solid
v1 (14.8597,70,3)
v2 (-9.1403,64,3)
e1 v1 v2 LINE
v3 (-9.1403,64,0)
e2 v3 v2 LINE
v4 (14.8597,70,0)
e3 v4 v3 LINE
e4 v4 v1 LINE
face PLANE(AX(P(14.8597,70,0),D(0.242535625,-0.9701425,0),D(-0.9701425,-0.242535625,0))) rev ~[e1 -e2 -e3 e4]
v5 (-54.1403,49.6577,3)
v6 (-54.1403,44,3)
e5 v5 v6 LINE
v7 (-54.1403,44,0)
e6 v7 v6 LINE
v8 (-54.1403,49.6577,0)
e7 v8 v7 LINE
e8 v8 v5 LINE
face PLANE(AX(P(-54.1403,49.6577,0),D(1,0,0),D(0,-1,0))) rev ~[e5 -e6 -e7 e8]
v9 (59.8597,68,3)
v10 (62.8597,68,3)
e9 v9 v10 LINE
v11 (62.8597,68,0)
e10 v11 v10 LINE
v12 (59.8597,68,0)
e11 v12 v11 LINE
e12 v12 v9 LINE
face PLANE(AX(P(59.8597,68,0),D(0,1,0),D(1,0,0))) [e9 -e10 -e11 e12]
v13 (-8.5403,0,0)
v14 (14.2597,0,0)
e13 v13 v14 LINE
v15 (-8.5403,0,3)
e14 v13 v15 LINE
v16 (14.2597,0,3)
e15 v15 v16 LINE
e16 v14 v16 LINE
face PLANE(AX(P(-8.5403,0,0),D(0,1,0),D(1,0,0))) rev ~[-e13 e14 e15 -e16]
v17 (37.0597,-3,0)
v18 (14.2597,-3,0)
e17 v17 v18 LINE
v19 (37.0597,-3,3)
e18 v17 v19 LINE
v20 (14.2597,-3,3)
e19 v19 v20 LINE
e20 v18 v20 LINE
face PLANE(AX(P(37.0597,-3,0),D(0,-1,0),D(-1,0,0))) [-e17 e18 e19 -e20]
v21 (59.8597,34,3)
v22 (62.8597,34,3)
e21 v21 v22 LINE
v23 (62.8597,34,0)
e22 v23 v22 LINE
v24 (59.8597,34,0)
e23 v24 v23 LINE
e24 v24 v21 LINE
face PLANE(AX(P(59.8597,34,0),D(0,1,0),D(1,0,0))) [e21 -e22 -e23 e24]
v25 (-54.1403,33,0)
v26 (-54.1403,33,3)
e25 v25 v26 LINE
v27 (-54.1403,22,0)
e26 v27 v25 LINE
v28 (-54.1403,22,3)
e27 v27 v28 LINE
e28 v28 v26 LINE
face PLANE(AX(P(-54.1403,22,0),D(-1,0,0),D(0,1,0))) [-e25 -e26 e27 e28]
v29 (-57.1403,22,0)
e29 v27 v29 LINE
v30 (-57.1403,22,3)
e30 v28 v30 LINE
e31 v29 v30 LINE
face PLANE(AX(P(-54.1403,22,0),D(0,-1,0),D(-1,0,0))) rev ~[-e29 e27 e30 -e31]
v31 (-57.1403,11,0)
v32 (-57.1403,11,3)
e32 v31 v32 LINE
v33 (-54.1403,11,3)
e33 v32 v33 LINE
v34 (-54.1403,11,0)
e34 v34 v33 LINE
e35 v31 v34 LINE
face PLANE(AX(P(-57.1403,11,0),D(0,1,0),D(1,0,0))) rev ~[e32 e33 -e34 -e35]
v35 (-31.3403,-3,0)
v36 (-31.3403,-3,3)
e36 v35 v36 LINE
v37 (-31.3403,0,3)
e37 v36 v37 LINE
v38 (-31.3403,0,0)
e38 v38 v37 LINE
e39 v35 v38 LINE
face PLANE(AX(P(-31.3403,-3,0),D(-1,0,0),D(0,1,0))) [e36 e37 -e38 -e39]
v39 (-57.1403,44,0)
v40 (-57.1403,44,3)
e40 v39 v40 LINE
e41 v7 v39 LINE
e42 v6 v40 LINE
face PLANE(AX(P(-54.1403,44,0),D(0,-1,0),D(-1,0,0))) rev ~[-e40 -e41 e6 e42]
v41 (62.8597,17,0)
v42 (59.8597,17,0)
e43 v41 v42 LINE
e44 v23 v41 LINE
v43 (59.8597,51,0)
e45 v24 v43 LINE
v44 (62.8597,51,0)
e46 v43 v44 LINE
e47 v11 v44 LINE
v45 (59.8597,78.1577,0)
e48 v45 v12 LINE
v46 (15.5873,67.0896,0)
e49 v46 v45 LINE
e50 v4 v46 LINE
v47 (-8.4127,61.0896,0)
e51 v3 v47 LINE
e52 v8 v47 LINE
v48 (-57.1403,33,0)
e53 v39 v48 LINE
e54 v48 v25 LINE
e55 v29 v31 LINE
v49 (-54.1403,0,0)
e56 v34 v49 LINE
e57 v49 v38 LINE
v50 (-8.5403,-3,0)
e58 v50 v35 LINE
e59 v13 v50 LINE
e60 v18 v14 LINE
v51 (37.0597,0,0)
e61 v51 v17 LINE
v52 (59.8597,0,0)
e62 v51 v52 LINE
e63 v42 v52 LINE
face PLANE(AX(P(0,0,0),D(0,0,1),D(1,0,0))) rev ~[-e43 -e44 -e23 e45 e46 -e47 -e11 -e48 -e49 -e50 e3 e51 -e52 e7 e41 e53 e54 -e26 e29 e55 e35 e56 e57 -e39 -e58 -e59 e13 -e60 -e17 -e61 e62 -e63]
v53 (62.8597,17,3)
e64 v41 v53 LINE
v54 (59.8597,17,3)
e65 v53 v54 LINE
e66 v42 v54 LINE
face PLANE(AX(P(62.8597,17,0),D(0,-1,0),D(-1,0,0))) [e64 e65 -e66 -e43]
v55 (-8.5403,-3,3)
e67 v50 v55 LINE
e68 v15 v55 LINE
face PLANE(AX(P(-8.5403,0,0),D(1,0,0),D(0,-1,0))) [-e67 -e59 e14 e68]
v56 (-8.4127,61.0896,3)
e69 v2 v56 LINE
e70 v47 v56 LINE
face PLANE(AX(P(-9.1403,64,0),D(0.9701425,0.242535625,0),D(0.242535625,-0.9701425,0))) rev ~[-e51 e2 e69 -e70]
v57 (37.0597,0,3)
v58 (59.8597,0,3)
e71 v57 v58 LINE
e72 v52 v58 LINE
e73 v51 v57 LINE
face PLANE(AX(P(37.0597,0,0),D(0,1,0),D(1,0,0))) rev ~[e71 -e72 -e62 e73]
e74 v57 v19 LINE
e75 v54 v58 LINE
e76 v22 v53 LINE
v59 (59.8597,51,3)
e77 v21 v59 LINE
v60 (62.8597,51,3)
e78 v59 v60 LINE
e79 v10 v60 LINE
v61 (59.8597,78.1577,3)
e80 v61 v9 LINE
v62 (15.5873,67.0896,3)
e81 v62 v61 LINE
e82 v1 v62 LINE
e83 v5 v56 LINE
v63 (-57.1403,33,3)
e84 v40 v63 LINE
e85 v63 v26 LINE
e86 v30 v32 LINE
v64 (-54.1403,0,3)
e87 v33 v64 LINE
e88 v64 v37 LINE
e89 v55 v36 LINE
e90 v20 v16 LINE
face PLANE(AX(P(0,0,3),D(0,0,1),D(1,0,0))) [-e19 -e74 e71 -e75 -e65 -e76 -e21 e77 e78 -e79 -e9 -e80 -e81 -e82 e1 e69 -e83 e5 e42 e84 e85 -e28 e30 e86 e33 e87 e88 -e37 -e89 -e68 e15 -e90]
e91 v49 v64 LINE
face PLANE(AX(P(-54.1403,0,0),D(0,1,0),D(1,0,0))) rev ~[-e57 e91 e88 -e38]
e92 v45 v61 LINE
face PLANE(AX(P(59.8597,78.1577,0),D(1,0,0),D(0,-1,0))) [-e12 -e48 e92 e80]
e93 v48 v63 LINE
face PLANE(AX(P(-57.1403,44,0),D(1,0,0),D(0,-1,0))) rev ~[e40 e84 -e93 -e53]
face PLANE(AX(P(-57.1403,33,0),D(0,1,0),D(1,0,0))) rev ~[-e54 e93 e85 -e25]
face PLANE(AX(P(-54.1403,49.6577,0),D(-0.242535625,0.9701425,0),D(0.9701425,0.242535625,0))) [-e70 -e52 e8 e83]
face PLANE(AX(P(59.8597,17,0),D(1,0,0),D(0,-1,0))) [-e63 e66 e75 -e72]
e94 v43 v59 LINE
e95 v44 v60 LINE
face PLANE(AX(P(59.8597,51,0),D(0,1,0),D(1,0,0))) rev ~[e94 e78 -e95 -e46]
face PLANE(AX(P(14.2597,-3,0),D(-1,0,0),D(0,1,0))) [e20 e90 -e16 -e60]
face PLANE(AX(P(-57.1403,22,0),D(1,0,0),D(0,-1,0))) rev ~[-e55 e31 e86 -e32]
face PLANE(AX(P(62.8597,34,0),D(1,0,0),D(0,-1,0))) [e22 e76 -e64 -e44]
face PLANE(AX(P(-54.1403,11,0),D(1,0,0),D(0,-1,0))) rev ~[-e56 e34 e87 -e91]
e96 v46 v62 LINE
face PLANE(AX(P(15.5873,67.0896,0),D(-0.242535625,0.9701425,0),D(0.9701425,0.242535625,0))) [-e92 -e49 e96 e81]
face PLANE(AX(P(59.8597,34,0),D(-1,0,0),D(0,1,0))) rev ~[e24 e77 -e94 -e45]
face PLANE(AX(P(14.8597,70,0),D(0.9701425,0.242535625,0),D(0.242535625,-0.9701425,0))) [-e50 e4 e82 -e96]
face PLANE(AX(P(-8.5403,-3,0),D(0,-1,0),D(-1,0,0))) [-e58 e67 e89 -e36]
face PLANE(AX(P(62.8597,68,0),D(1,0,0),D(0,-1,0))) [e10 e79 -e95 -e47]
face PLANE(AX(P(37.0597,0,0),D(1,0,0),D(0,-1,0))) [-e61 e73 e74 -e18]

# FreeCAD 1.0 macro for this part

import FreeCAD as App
import Part
import Sketcher

V = App.Vector


def add_polygon(sketch, points):
    """Adds a closed chain of lines whose ends are joined by coincident constraints."""
    first, n = sketch.GeometryCount, len(points)
    for a, b in zip(points, points[1:] + points[:1]):
        sketch.addGeometry(Part.LineSegment(App.Vector(*a, 0), App.Vector(*b, 0)), False)
    for i in range(n):
        sketch.addConstraint(Sketcher.Constraint("Coincident", first + i, 2, first + (i + 1) % n, 1))

doc = App.newDocument("Part")
params = doc.addObject("Spreadsheet::Sheet", "Params")
for row, (alias, value) in enumerate([
    ("sketch1_width", "3 mm"),
    ("sketch1_height", "11 mm"),
    ("sketch1_height2", "17 mm"),
    ("sketch1_length", "3 mm"),
    ("sketch1_width2", "22.8 mm"),
    ("pad1_length", "3 mm"),
], start=1):
    params.set(f"A{row}", alias)
    params.set(f"B{row}", "=" + value)
    params.setAlias(f"B{row}", alias)

body = doc.addObject("PartDesign::Body", "Body")

sketch1 = body.newObject("Sketcher::SketchObject", "Sketch")
sketch1.AttachmentSupport = (doc.getObject("XY_Plane"), [""])
sketch1.MapMode = "FlatFace"
add_polygon(sketch1, [(15.6, 67.1), (14.9, 70), (-9.1, 64), (-8.4, 61.1), (-54.1, 49.7), (-54.1, 44), (-57.1, 44), (-57.1, 33), (-54.1, 33), (-54.1, 22), (-57.1, 22), (-57.1, 11), (-54.1, 11), (-54.1, 0), (-31.3, 0), (-31.3, -3), (-8.5, -3), (-8.5, 0), (14.3, 0), (14.3, -3), (37.1, -3), (37.1, 0), (59.9, 0), (59.9, 17), (62.9, 17), (62.9, 34), (59.9, 34), (59.9, 51), (62.9, 51), (62.9, 68), (59.9, 68), (59.9, 78.2)])
sketch1.addConstraint([
    Sketcher.Constraint("Vertical", 4),
    Sketcher.Constraint("Horizontal", 5),
    Sketcher.Constraint("Vertical", 6),
    Sketcher.Constraint("Horizontal", 7),
    Sketcher.Constraint("Vertical", 8),
    Sketcher.Constraint("Horizontal", 9),
    Sketcher.Constraint("Vertical", 10),
    Sketcher.Constraint("Horizontal", 11),
    Sketcher.Constraint("Vertical", 12),
    Sketcher.Constraint("Horizontal", 13),
    Sketcher.Constraint("Vertical", 14),
    Sketcher.Constraint("Horizontal", 15),
    Sketcher.Constraint("Vertical", 16),
    Sketcher.Constraint("Horizontal", 17),
    Sketcher.Constraint("Vertical", 18),
    Sketcher.Constraint("Horizontal", 19),
    Sketcher.Constraint("Vertical", 20),
    Sketcher.Constraint("Horizontal", 21),
    Sketcher.Constraint("Vertical", 22),
    Sketcher.Constraint("Horizontal", 23),
    Sketcher.Constraint("Vertical", 24),
    Sketcher.Constraint("Horizontal", 25),
    Sketcher.Constraint("Vertical", 26),
    Sketcher.Constraint("Horizontal", 27),
    Sketcher.Constraint("Vertical", 28),
    Sketcher.Constraint("Horizontal", 29),
    Sketcher.Constraint("Vertical", 30),
    Sketcher.Constraint("PointOnObject", 12, 2, -1),
    Sketcher.Constraint("PointOnObject", 16, 2, -1),
    Sketcher.Constraint("PointOnObject", 20, 2, -1),
    Sketcher.Constraint("Perpendicular", 0, 1),
    Sketcher.Constraint("Perpendicular", 1, 2),
    Sketcher.Constraint("Perpendicular", 2, 3),
    Sketcher.Constraint("Parallel", 3, 31),
    Sketcher.Constraint("Horizontal", 15, 2, 18, 2),
    Sketcher.Constraint("Vertical", 4, 2, 7, 2),
    Sketcher.Constraint("Vertical", 6, 2, 9, 2),
    Sketcher.Constraint("Vertical", 8, 2, 11, 2),
    Sketcher.Constraint("Vertical", 22, 2, 25, 2),
    Sketcher.Constraint("Vertical", 24, 2, 27, 2),
    Sketcher.Constraint("Vertical", 26, 2, 29, 2),
    Sketcher.Constraint("Equal", 13, 15),
    Sketcher.Constraint("Equal", 15, 17),
    Sketcher.Constraint("Equal", 17, 19),
    Sketcher.Constraint("Equal", 19, 21),
    Sketcher.Constraint("Equal", 11, 23),
    Sketcher.Constraint("Equal", 6, 8),
    Sketcher.Constraint("Equal", 8, 10),
    Sketcher.Constraint("Equal", 10, 12),
    Sketcher.Constraint("Equal", 29, 14),
    Sketcher.Constraint("Equal", 22, 24),
    Sketcher.Constraint("Equal", 24, 26),
    Sketcher.Constraint("Equal", 26, 28),
    Sketcher.Constraint("Equal", 0, 2),
    Sketcher.Constraint("DistanceX", 5, 2, 5, 1, 3.0),
    Sketcher.Constraint("DistanceY", 6, 2, 6, 1, 11.0),
    Sketcher.Constraint("DistanceY", 22, 1, 22, 2, 17.0),
    Sketcher.Constraint("Distance", 0, 3.0),
    Sketcher.Constraint("DistanceX", 13, 1, 13, 2, 22.8),
    Sketcher.Constraint("DistanceX", 5, 2, 1, 2, 48.0),
    Sketcher.Constraint("DistanceX", 0, 2, 28, 2, 48.0),
    Sketcher.Constraint("DistanceY", -1, 1, 0, 2, 70.0),
    Sketcher.Constraint("DistanceY", -1, 1, 1, 2, 64.0),
    Sketcher.Constraint("DistanceX", 15, 2, -1, 1, 8.5403),
])
sketch1.setExpression("Constraints[86]", "Params.sketch1_width")
sketch1.setExpression("Constraints[87]", "Params.sketch1_height")
sketch1.setExpression("Constraints[88]", "Params.sketch1_height2")
sketch1.setExpression("Constraints[89]", "Params.sketch1_length")
sketch1.setExpression("Constraints[90]", "Params.sketch1_width2")
pad1 = body.newObject("PartDesign::Pad", "Pad")
pad1.Profile = sketch1
pad1.setExpression("Length", "Params.pad1_length")

doc.recompute()
